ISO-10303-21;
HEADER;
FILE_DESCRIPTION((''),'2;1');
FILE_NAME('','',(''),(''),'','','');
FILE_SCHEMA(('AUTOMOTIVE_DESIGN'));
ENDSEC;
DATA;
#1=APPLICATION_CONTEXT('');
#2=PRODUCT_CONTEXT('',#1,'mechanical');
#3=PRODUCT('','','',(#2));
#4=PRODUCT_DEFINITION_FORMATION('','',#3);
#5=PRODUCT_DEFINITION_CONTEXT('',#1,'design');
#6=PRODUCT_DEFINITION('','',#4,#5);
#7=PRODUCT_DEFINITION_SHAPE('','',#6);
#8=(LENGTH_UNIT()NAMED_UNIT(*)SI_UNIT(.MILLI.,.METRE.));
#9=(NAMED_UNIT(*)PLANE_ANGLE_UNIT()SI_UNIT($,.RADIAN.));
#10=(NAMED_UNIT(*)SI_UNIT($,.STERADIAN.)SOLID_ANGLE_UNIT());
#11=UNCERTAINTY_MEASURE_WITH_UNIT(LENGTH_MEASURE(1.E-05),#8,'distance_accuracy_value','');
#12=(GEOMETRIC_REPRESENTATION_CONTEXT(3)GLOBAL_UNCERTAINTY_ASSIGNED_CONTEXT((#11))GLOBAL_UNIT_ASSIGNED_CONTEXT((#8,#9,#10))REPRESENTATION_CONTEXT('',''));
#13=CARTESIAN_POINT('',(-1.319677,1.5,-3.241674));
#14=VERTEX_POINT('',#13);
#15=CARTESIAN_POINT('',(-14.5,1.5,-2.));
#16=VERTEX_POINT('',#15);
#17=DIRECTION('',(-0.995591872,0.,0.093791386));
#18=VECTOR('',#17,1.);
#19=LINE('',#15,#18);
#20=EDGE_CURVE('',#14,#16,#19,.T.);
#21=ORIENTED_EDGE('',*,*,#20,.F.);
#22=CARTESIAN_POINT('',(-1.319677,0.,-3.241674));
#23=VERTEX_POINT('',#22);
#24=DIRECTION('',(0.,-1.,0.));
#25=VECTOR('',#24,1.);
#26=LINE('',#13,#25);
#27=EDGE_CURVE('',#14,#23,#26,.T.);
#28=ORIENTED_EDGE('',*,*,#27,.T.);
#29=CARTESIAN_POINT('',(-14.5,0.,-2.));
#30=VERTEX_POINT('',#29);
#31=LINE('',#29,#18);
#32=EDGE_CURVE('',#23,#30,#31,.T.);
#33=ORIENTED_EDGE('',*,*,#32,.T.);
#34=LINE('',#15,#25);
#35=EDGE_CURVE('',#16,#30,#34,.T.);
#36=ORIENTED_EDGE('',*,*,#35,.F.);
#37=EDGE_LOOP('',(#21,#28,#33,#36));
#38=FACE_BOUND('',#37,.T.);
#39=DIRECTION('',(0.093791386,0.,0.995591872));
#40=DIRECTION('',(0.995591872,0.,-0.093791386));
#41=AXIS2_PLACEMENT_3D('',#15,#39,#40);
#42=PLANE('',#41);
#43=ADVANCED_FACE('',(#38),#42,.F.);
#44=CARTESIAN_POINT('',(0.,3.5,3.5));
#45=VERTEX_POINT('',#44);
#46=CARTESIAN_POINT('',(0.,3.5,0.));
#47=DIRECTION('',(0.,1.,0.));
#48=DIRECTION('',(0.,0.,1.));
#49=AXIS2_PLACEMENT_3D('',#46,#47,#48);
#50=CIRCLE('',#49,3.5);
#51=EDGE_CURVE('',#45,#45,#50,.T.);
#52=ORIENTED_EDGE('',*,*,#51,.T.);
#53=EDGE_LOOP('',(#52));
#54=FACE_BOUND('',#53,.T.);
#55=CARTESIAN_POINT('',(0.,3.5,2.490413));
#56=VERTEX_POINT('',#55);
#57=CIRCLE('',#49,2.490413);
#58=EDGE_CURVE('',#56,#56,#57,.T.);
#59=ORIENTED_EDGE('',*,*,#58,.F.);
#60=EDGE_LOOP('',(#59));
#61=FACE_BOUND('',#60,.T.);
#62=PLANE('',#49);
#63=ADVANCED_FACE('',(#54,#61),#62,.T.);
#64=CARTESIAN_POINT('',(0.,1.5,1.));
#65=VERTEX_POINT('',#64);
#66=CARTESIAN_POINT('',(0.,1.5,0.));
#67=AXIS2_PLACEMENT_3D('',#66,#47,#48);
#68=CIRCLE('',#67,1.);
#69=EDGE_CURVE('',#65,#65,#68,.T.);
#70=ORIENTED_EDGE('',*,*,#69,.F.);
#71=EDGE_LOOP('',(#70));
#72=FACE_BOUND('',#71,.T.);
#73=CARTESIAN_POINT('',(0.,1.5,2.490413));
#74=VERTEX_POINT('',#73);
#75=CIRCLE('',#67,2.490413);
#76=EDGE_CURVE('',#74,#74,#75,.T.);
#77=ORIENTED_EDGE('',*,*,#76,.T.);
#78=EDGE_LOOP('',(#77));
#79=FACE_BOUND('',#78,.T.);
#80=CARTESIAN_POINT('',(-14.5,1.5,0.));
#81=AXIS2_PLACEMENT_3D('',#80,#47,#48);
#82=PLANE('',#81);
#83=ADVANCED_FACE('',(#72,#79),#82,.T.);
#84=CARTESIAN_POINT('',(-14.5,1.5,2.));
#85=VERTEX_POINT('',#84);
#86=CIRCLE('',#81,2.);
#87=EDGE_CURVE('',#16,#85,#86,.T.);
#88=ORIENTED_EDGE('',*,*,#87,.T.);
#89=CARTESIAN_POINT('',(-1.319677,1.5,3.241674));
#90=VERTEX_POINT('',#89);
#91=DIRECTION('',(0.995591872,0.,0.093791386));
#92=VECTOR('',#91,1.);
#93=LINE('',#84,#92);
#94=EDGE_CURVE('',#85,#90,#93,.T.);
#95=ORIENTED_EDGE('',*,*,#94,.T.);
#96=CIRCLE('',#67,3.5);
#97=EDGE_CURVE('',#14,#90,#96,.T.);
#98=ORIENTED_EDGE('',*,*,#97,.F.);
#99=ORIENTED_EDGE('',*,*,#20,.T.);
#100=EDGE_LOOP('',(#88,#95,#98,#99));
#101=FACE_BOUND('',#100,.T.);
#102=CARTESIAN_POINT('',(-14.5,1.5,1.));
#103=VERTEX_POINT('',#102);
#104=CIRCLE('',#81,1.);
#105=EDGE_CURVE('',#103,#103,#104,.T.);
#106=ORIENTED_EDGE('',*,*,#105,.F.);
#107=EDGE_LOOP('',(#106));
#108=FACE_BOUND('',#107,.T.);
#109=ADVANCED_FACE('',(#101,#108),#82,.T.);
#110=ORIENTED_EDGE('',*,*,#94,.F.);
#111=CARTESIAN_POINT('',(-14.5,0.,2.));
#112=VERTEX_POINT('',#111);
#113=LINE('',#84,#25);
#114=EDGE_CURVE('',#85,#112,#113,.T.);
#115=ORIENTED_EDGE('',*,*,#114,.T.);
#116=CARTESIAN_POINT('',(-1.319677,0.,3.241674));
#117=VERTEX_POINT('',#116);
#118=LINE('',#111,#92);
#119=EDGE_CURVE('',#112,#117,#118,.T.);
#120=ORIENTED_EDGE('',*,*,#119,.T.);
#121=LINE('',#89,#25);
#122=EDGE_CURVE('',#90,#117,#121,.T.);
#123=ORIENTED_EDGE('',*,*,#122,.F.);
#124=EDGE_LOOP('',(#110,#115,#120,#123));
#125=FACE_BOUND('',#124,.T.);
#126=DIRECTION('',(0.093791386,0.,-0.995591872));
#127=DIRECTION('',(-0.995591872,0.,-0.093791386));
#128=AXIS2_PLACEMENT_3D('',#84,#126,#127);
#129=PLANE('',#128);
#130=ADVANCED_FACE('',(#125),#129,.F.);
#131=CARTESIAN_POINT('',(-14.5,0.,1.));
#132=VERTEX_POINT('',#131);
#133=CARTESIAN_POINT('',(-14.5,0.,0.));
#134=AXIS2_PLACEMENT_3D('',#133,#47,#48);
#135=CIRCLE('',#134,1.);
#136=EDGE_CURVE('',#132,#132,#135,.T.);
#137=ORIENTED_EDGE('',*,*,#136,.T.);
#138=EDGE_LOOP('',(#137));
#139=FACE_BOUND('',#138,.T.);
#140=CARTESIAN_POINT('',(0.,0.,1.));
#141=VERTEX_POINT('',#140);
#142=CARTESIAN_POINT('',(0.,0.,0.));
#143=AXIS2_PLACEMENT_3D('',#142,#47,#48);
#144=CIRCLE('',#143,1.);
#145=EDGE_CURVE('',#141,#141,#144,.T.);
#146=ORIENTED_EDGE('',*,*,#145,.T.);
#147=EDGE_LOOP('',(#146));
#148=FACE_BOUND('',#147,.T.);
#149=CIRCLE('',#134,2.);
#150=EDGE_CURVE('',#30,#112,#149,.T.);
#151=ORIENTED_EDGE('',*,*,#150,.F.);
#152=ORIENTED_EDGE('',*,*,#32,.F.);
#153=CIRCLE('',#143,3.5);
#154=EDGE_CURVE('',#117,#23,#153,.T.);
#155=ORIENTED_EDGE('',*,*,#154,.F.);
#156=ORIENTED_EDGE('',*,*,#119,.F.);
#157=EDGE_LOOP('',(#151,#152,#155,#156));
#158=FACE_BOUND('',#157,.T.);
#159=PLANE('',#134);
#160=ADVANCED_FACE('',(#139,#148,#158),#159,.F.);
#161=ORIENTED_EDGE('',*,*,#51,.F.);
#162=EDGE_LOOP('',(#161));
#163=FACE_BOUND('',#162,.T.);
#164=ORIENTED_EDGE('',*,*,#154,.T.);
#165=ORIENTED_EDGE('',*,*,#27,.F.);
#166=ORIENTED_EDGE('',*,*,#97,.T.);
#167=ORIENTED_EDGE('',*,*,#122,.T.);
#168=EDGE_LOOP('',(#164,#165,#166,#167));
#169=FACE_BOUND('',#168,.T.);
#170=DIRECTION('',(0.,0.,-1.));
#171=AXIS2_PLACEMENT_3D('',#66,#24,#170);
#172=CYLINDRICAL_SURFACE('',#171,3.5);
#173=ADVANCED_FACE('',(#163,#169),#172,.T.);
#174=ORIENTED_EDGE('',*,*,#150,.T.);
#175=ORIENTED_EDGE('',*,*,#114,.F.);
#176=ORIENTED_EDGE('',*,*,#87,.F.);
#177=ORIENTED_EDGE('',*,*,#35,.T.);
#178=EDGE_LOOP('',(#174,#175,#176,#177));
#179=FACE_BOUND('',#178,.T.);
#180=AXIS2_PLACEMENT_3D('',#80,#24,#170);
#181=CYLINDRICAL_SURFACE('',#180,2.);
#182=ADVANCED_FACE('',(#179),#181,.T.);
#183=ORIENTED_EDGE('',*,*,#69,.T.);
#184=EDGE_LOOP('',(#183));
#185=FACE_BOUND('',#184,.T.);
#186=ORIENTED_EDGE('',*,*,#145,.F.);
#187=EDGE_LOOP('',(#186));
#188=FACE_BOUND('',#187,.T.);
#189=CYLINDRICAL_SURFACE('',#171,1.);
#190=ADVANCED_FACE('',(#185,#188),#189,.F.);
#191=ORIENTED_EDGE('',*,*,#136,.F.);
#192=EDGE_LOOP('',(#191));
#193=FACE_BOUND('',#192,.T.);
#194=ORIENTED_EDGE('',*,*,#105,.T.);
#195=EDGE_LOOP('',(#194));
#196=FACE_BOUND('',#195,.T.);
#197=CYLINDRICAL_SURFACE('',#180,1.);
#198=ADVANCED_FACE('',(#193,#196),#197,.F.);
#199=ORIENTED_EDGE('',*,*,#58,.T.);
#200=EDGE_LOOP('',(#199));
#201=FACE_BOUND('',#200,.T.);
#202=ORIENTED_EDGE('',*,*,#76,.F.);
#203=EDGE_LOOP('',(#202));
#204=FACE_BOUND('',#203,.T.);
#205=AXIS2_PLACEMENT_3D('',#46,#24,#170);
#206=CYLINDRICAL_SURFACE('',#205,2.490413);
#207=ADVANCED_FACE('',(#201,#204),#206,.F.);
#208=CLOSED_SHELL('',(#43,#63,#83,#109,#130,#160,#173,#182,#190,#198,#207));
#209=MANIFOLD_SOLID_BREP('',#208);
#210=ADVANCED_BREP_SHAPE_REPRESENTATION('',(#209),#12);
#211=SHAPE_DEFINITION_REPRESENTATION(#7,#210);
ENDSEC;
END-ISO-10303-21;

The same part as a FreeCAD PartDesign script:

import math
import FreeCAD as App
import Part
import Sketcher

V = App.Vector
Q = App.Units.Quantity

doc = App.newDocument("Part")
body = doc.addObject("PartDesign::Body", "Body")

# Sketch on XZ plane
sketch1 = body.newObject("Sketcher::SketchObject", "Sketch")
sketch1.AttachmentSupport = (doc.getObject("XZ_Plane"), [""])
sketch1.MapMode = "FlatFace"
sketch1.addGeometry([
    Part.LineSegment(V(-1.3, -3.2, 0), V(-14.5, -2, 0)),  # 0
    Part.ArcOfCircle(Part.Circle(V(-14.5, 0, 0), V(0, 0, 1), 2), math.radians(90), math.radians(270)),  # 1
    Part.LineSegment(V(-14.5, 2, 0), V(-1.3, 3.2, 0)),  # 2
    Part.ArcOfCircle(Part.Circle(V(0, 0, 0), V(0, 0, 1), 3.5), math.radians(-112), math.radians(112)),  # 3
    Part.Circle(V(0, 0, 0), V(0, 0, 1), 1),  # 4
    Part.Circle(V(-14.5, 0, 0), V(0, 0, 1), 1),  # 5
], False)
sketch1.addConstraint([
    Sketcher.Constraint("Coincident", 0, 2, 1, 2),
    Sketcher.Constraint("Coincident", 1, 1, 2, 1),
    Sketcher.Constraint("Coincident", 2, 2, 3, 2),
    Sketcher.Constraint("Coincident", 3, 1, 0, 1),
    Sketcher.Constraint("Coincident", 3, 3, -1, 1),
    Sketcher.Constraint("Coincident", 4, 3, -1, 1),
    Sketcher.Constraint("Coincident", 5, 3, 1, 3),
    Sketcher.Constraint("Equal", 4, 5),
    Sketcher.Constraint("Symmetric", 0, 2, 1, 1, -1),
    Sketcher.Constraint("Vertical", 5, 3, 0, 2),
    Sketcher.Constraint("Vertical", 2, 2, 3, 1),
    Sketcher.Constraint("Diameter", 4, Q("2 mm")),
    Sketcher.Constraint("Radius", 1, Q("2 mm")),
    Sketcher.Constraint("Radius", 3, Q("3.5 mm")),
    Sketcher.Constraint("DistanceX", 1, 3, -1, 1, Q("14.5 mm")),
    Sketcher.Constraint("Distance", 0, Q("13.23868 mm")),
])
pad1 = body.newObject("PartDesign::Pad", "Pad")
pad1.Profile = sketch1
pad1.Length = 1.5
pad1.Reversed = True

# Sketch on XZ plane
sketch2 = body.newObject("Sketcher::SketchObject", "Sketch001")
sketch2.AttachmentSupport = (doc.getObject("XZ_Plane"), [""])
sketch2.MapMode = "FlatFace"
sketch2.AttachmentOffset = App.Placement(V(0, 0, -1.5), App.Rotation())
sketch2.addGeometry([
    Part.Circle(V(0, 0, 0), V(0, 0, 1), 3.5),
    Part.Circle(V(0, 0, 0), V(0, 0, 1), 2.5),
], False)
sketch2.addConstraint([
    Sketcher.Constraint("Coincident", 0, 3, -1, 1),
    Sketcher.Constraint("Coincident", 1, 3, -1, 1),
    Sketcher.Constraint("Diameter", 0, Q("7 mm")),
    Sketcher.Constraint("Diameter", 1, Q("4.980826 mm")),
])
pad2 = body.newObject("PartDesign::Pad", "Pad001")
pad2.Profile = sketch2
pad2.Length = 2
pad2.Reversed = True

doc.recompute()
